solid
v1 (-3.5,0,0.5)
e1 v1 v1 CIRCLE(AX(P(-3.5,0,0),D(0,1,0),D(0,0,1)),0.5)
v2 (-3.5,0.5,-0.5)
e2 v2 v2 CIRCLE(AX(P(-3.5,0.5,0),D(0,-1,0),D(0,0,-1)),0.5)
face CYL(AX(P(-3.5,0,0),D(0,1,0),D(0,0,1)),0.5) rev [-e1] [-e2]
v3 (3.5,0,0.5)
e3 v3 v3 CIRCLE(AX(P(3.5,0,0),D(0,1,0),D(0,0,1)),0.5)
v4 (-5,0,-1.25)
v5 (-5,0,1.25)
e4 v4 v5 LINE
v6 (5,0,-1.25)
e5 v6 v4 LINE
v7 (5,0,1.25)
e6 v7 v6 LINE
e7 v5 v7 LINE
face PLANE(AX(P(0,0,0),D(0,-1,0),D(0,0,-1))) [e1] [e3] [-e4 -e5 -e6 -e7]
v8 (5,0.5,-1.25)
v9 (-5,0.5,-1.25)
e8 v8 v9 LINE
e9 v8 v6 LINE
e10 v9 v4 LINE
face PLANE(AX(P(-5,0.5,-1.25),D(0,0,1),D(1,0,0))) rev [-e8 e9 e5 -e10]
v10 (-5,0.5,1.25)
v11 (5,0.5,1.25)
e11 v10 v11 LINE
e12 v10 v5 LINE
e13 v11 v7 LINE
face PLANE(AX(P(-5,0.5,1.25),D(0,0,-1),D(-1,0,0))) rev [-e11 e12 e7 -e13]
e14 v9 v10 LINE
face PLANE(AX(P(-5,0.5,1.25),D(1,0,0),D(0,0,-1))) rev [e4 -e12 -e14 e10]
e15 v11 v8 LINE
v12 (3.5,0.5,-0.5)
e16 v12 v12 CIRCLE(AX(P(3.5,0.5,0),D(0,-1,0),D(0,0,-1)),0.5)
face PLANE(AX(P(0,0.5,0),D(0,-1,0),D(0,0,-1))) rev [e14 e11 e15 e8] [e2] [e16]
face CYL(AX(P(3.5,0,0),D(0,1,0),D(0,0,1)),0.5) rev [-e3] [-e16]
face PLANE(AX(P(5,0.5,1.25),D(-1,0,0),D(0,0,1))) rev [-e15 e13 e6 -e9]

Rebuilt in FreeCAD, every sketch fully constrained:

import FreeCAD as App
import Part
import Sketcher
from FreeCAD import Vector
Q = App.Units.Quantity


def add_polygon(sketch, points):
    """Adds a closed chain of lines whose ends are joined by coincident constraints."""
    first, n = sketch.GeometryCount, len(points)
    for a, b in zip(points, points[1:] + points[:1]):
        sketch.addGeometry(Part.LineSegment(App.Vector(*a, 0), App.Vector(*b, 0)), False)
    for i in range(n):
        sketch.addConstraint(Sketcher.Constraint("Coincident", first + i, 2, first + (i + 1) % n, 1))

doc = App.newDocument("Part")
body = doc.addObject("PartDesign::Body", "Body")

# Sketch on XZ plane
sketch1 = doc.addObject("Sketcher::SketchObject", "Sketch")
body.addObject(sketch1)
sketch1.AttachmentSupport = (doc.XZ_Plane, [""])
sketch1.MapMode = "FlatFace"
add_polygon(sketch1, [(-5, -1.2), (-5, 1.2), (5, 1.2), (5, -1.2)])  # lines 0-3
sketch1.addConstraint([
    Sketcher.Constraint("Vertical", 0),
    Sketcher.Constraint("Horizontal", 1),
    Sketcher.Constraint("Vertical", 2),
    Sketcher.Constraint("Horizontal", 3),
    Sketcher.Constraint("Symmetric", 0, 2, 2, 2, -1, 1),
    Sketcher.Constraint("DistanceX", 1, 1, 1, 2, Q("10 mm")),
    Sketcher.Constraint("DistanceY", 0, 1, 0, 2, Q("2.5 mm")),
])
pad1 = doc.addObject("PartDesign::Pad", "Pad")
body.addObject(pad1)
pad1.Profile = sketch1
pad1.Length = 0.5
pad1.Reversed = True

# Sketch on XZ plane
sketch2 = doc.addObject("Sketcher::SketchObject", "Sketch001")
body.addObject(sketch2)
sketch2.AttachmentSupport = (doc.XZ_Plane, [""])
sketch2.MapMode = "FlatFace"
sketch2.AttachmentOffset = App.Placement(Vector(0, 0, -0.5), App.Rotation())
sketch2.addGeometry([
    Part.Circle(Vector(-3.5, 0, 0), Vector(0, 0, 1), 0.5),
    Part.Circle(Vector(3.5, 0, 0), Vector(0, 0, 1), 0.5),
], False)
sketch2.addConstraint([
    Sketcher.Constraint("Equal", 0, 1),
    Sketcher.Constraint("Symmetric", 0, 3, 1, 3, -1, 1),
    Sketcher.Constraint("PointOnObject", 0, 3, -1),
    Sketcher.Constraint("Diameter", 0, Q("1 mm")),
    Sketcher.Constraint("DistanceX", 0, 3, 1, 3, Q("7 mm")),
])
pocket1 = doc.addObject("PartDesign::Pocket", "Pocket")
body.addObject(pocket1)
pocket1.Profile = sketch2
pocket1.Type = "ThroughAll"
pocket1.Midplane = True

doc.recompute()
